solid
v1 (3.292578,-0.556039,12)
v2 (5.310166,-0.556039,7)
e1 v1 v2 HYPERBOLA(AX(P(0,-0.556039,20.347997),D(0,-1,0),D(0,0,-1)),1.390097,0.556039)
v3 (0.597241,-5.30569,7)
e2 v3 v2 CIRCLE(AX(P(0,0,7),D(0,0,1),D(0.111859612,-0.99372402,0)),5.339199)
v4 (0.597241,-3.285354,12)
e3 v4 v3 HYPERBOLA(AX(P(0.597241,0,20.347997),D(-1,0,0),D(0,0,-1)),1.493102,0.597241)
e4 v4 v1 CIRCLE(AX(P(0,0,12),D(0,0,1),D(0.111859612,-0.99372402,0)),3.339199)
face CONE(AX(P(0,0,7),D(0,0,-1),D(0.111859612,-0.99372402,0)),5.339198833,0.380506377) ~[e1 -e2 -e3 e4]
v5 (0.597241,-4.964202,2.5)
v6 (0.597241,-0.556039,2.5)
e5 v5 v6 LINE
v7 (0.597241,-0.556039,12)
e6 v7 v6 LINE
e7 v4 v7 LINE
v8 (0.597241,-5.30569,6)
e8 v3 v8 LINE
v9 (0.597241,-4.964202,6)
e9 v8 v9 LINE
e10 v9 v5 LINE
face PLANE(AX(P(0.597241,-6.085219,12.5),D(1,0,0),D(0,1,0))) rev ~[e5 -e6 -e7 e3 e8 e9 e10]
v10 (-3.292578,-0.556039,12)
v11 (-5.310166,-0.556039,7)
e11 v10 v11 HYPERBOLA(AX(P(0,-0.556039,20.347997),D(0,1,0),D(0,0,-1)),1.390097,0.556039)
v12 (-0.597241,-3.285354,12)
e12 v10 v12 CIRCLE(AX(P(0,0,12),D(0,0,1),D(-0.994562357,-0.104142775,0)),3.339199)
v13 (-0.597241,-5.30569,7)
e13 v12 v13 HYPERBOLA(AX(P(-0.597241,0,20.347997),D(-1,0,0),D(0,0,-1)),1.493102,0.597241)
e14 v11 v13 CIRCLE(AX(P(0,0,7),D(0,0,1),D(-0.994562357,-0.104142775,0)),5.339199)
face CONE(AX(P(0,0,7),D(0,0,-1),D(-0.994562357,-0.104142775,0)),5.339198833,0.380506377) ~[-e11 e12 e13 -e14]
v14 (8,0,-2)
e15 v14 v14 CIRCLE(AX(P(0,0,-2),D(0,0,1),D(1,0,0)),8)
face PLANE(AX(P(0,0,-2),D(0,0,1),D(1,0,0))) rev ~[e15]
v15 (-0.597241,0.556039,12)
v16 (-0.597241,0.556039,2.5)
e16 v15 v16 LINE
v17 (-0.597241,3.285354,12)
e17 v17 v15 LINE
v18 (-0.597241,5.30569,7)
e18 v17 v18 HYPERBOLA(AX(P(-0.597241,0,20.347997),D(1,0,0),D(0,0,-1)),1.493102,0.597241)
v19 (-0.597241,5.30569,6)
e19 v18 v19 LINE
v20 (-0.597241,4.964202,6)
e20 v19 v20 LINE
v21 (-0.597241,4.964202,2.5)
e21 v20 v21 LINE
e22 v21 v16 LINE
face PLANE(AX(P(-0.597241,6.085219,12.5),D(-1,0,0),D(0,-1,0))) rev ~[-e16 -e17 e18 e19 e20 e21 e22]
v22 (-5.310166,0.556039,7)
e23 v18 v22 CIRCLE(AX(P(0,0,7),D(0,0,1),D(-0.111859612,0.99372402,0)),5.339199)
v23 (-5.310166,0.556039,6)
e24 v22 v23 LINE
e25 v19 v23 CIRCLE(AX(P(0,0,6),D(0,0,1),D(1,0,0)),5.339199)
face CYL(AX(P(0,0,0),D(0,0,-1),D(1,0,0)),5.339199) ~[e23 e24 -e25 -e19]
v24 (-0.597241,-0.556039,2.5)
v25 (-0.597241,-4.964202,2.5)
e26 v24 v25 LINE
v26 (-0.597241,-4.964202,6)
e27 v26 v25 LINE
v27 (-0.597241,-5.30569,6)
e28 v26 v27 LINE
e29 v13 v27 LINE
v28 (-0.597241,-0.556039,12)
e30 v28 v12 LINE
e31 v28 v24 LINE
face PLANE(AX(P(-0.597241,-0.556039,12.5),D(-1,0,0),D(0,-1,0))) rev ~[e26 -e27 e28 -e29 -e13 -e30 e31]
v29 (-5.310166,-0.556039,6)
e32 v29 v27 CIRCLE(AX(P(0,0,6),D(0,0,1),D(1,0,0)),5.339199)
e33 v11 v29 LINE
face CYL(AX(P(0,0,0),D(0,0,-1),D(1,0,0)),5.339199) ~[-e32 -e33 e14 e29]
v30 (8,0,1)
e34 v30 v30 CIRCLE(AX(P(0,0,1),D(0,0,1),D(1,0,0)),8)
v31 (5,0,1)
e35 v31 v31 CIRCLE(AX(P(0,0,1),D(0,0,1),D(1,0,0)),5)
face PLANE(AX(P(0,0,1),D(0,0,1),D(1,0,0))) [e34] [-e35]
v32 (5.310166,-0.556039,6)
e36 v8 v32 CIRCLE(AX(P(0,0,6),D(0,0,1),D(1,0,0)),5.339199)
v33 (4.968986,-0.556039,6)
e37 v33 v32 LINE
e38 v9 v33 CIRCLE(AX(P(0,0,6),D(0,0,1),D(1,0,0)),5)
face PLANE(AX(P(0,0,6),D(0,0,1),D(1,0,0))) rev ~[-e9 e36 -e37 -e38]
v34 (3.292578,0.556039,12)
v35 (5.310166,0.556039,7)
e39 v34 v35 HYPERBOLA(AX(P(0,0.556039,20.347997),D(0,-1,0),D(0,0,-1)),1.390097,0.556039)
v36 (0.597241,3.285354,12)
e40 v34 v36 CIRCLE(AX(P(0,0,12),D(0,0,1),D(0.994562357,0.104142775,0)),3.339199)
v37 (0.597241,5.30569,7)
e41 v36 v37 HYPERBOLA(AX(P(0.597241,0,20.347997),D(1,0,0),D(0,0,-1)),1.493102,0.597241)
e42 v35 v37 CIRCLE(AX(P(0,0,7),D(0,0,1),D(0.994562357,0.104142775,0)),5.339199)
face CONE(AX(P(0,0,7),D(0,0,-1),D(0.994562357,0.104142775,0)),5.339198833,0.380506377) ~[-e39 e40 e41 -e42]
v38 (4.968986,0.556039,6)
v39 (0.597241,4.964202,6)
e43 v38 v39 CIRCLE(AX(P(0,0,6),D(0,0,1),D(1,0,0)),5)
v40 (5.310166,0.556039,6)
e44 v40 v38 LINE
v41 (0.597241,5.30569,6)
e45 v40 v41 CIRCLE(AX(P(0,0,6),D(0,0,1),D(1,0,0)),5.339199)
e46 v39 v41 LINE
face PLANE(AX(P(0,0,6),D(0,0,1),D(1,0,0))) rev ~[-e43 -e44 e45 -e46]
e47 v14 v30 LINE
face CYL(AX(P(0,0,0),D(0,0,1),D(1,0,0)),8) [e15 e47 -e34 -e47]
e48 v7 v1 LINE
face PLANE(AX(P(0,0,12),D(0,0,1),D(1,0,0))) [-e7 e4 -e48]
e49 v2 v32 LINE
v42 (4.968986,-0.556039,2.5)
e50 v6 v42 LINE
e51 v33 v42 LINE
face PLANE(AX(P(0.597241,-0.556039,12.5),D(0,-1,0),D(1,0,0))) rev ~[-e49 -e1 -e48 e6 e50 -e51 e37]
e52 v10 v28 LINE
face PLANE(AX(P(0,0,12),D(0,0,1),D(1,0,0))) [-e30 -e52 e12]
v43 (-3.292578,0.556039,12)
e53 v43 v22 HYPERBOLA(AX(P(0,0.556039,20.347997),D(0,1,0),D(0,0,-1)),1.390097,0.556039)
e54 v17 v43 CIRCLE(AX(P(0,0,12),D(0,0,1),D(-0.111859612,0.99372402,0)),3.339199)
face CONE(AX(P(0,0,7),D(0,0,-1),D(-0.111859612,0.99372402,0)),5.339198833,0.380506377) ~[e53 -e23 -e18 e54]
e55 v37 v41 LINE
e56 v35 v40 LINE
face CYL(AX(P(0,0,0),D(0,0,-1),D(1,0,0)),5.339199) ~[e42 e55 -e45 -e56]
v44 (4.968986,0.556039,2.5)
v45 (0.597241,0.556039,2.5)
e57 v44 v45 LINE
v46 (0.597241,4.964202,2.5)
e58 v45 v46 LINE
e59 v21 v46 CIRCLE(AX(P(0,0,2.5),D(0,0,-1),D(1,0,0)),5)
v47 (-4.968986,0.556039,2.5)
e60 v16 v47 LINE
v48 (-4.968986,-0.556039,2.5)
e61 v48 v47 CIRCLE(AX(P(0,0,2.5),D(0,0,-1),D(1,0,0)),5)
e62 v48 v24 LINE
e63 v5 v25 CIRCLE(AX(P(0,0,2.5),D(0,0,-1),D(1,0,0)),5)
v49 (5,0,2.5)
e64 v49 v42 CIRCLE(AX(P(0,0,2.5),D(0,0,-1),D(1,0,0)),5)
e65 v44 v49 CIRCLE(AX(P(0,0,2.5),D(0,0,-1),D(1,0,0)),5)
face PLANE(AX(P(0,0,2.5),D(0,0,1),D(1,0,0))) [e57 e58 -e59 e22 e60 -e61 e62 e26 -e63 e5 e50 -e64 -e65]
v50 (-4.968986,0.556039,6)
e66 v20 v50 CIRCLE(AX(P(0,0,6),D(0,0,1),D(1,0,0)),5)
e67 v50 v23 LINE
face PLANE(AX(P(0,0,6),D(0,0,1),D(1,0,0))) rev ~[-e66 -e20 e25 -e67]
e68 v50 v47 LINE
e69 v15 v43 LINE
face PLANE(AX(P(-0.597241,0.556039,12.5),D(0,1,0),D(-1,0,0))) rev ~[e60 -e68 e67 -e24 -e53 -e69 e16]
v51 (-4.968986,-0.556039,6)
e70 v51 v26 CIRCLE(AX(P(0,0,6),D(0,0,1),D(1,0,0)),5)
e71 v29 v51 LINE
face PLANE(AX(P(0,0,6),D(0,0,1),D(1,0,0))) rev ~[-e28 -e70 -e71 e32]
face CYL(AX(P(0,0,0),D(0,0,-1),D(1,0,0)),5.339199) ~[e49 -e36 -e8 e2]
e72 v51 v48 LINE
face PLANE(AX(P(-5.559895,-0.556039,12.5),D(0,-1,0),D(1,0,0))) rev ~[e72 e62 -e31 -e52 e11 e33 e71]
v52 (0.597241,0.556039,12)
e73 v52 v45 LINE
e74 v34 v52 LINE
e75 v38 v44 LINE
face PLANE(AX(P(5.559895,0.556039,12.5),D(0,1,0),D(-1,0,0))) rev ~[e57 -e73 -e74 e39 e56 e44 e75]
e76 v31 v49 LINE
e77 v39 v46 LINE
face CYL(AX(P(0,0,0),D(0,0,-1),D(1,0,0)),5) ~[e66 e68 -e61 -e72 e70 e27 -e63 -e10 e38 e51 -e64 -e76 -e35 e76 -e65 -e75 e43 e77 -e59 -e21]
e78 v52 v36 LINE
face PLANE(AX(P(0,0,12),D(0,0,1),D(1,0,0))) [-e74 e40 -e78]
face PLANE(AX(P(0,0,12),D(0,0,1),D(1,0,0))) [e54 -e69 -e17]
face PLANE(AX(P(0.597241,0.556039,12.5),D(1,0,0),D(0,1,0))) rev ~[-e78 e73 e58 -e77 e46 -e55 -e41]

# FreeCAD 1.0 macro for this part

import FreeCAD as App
import Part
import Sketcher
from FreeCAD import Vector
Q = App.Units.Quantity


def edges_at(feature, points):
    """Names of the edges that pass closest to the given points."""
    edges = feature.Shape.Edges
    near = lambda p: min(range(len(edges)), key=lambda i: edges[i].distToShape(Part.Vertex(*p))[0])
    return sorted({f"Edge{near(p) + 1}" for p in points})


def add_polygon(sketch, points):
    """Adds a closed chain of lines whose ends are joined by coincident constraints."""
    first, n = sketch.GeometryCount, len(points)
    for a, b in zip(points, points[1:] + points[:1]):
        sketch.addGeometry(Part.LineSegment(App.Vector(*a, 0), App.Vector(*b, 0)), False)
    for i in range(n):
        sketch.addConstraint(Sketcher.Constraint("Coincident", first + i, 2, first + (i + 1) % n, 1))

doc = App.newDocument("Part")
body = doc.addObject("PartDesign::Body", "Body")

sketch1 = body.newObject("Sketcher::SketchObject", "Sketch")
sketch1.AttachmentSupport = (doc.getObject("XY_Plane"), [""])
sketch1.MapMode = "FlatFace"
sketch1.addGeometry(Part.Circle(Vector(0, 0, 0), Vector(0, 0, 1), 5), False)
sketch1.addConstraint([
    Sketcher.Constraint("Coincident", 0, 3, -1, 1),
    Sketcher.Constraint("Diameter", 0, Q("10 mm")),
])
pad1 = body.newObject("PartDesign::Pad", "Pad")
pad1.Profile = sketch1
pad1.Length = 12

sketch2 = body.newObject("Sketcher::SketchObject", "Sketch001")
sketch2.AttachmentSupport = (doc.getObject("XY_Plane"), [""])
sketch2.MapMode = "FlatFace"
sketch2.addGeometry([
    Part.Circle(Vector(0, 0, 0), Vector(0, 0, 1), 5),
    Part.Circle(Vector(0, 0, 0), Vector(0, 0, 1), 5),
], False)
sketch2.addConstraint([
    Sketcher.Constraint("Coincident", 0, 3, -1, 1),
    Sketcher.Constraint("Coincident", 1, 3, -1, 1),
    Sketcher.Constraint("Diameter", 1, Q("10 mm")),
    Sketcher.Constraint("Diameter", 0, Q("10.678398 mm")),
])
pad2 = body.newObject("PartDesign::Pad", "Pad001")
pad2.Profile = sketch2
pad2.Length = 12

sketch3 = body.newObject("Sketcher::SketchObject", "Sketch002")
sketch3.AttachmentSupport = (doc.getObject("XY_Plane"), [""])
sketch3.MapMode = "FlatFace"
sketch3.addGeometry([
    Part.Circle(Vector(0, 0, 0), Vector(0, 0, 1), 5),
    Part.Circle(Vector(0, 0, 0), Vector(0, 0, 1), 5),
], False)
sketch3.addConstraint([
    Sketcher.Constraint("Coincident", 0, 3, -1, 1),
    Sketcher.Constraint("Coincident", 1, 3, -1, 1),
    Sketcher.Constraint("Diameter", 1, Q("10 mm")),
    Sketcher.Constraint("Diameter", 0, Q("10.678398 mm")),
])
pocket1 = body.newObject("PartDesign::Pocket", "Pocket")
pocket1.Profile = sketch3
pocket1.Length = 6
pocket1.Reversed = True

sketch4 = body.newObject("Sketcher::SketchObject", "Sketch003")
sketch4.AttachmentSupport = (doc.getObject("XY_Plane"), [""])
sketch4.MapMode = "FlatFace"
sketch4.addGeometry([
    Part.Circle(Vector(0, 0, 0), Vector(0, 0, 1), 5),
    Part.Circle(Vector(0, 0, 0), Vector(0, 0, 1), 5),
], False)
sketch4.addConstraint([
    Sketcher.Constraint("Coincident", 0, 3, -1, 1),
    Sketcher.Constraint("Coincident", 1, 3, -1, 1),
    Sketcher.Constraint("Diameter", 1, Q("10 mm")),
    Sketcher.Constraint("Diameter", 0, Q("10.678398 mm")),
])
pad3 = body.newObject("PartDesign::Pad", "Pad002")
pad3.Profile = sketch4
pad3.Length = 1
body2 = doc.addObject("PartDesign::Body", "Body001")

sketch5 = body2.newObject("Sketcher::SketchObject", "Sketch004")
sketch5.AttachmentSupport = (doc.getObject("XY_Plane001"), [""])
sketch5.MapMode = "FlatFace"
sketch5.addGeometry([
    Part.Circle(Vector(0, 0, 0), Vector(0, 0, 1), 8),
    Part.Circle(Vector(0, 0, 0), Vector(0, 0, 1), 6),
], False)
sketch5.addConstraint([
    Sketcher.Constraint("Coincident", 0, 3, -1, 1),
    Sketcher.Constraint("Coincident", 1, 3, -1, 1),
    Sketcher.Constraint("Diameter", 0, Q("16 mm")),
    Sketcher.Constraint("Diameter", 1, Q("12 mm")),
])
pad4 = body2.newObject("PartDesign::Pad", "Pad003")
pad4.Profile = sketch5
pad4.Length = 1
body.AllowCompound = True
doc.recompute()

boolean = body.newObject("PartDesign::Boolean", "Boolean")
boolean.Type = "Fuse"
boolean.addObjects([body2])

sketch6 = body.newObject("Sketcher::SketchObject", "Sketch005")
sketch6.AttachmentSupport = (doc.getObject("XY_Plane"), [""])
sketch6.MapMode = "FlatFace"
sketch6.addGeometry([
    Part.Circle(Vector(0, 0, 0), Vector(0, 0, 1), 6),
    Part.Circle(Vector(0, 0, 0), Vector(0, 0, 1), 5),
], False)
sketch6.addConstraint([
    Sketcher.Constraint("Coincident", 0, 3, -1, 1),
    Sketcher.Constraint("Coincident", 1, 3, -1, 1),
    Sketcher.Constraint("Diameter", 0, Q("12 mm")),
    Sketcher.Constraint("Diameter", 1, Q("10.678398 mm")),
])
pad5 = body.newObject("PartDesign::Pad", "Pad004")
pad5.Profile = sketch6
pad5.Length = 1

sketch7 = body.newObject("Sketcher::SketchObject", "Sketch006")
sketch7.AttachmentSupport = (doc.getObject("XY_Plane"), [""])
sketch7.MapMode = "FlatFace"
sketch7.AttachmentOffset = App.Placement(Vector(0, 0, 12.5), App.Rotation())
add_polygon(sketch7, [(-0.6, -6.1), (0.6, -6.1), (0.6, -0.6), (5.6, -0.6), (5.6, 0.6), (0.6, 0.6), (0.6, 6.1), (-0.6, 6.1), (-0.6, 0.6), (-5.6, 0.6), (-5.6, -0.6), (-0.6, -0.6)])
sketch7.addConstraint([
    Sketcher.Constraint("Horizontal", 0),
    Sketcher.Constraint("Vertical", 1),
    Sketcher.Constraint("Horizontal", 2),
    Sketcher.Constraint("Vertical", 3),
    Sketcher.Constraint("Horizontal", 4),
    Sketcher.Constraint("Vertical", 5),
    Sketcher.Constraint("Horizontal", 6),
    Sketcher.Constraint("Vertical", 7),
    Sketcher.Constraint("Horizontal", 8),
    Sketcher.Constraint("Vertical", 9),
    Sketcher.Constraint("Horizontal", 10),
    Sketcher.Constraint("Vertical", 11),
    Sketcher.Constraint("Symmetric", 0, 2, 6, 2, -1, 1),
    Sketcher.Constraint("Symmetric", 2, 2, 8, 2, -1, 1),
    Sketcher.Constraint("Symmetric", 4, 2, 10, 2, -1, 1),
    Sketcher.Constraint("Symmetric", 4, 2, 7, 2, -2),
    Sketcher.Constraint("DistanceX", 0, 1, 0, 2, Q("1.194481 mm")),
    Sketcher.Constraint("DistanceY", 1, 1, 1, 2, Q("5.52918 mm")),
    Sketcher.Constraint("DistanceX", 2, 1, 2, 2, Q("4.962654 mm")),
    Sketcher.Constraint("DistanceY", 3, 1, 3, 2, Q("1.112078 mm")),
])
pocket2 = body.newObject("PartDesign::Pocket", "Pocket001")
pocket2.Profile = sketch7
pocket2.Length = 10
doc.recompute()

chamfer = body.newObject("PartDesign::Chamfer", "Chamfer")
chamfer.Base = (pocket2, edges_at(pocket2, [
    (3.79, -3.761, 12),
    (-3.79, -3.761, 12),
    (3.79, 3.761, 12),
    (-3.79, 3.761, 12),
]))
chamfer.ChamferType = "Two distances"
chamfer.Size = 2
chamfer.Size2 = 5

sketch8 = body.newObject("Sketcher::SketchObject", "Sketch007")
sketch8.AttachmentSupport = (doc.getObject("XY_Plane"), [""])
sketch8.MapMode = "FlatFace"
sketch8.addGeometry(Part.Circle(Vector(0, 0, 0), Vector(0, 0, 1), 8), False)
sketch8.addConstraint([
    Sketcher.Constraint("Coincident", 0, 3, -1, 1),
    Sketcher.Constraint("Diameter", 0, Q("16 mm")),
])
pad6 = body.newObject("PartDesign::Pad", "Pad005")
pad6.Profile = sketch8
pad6.Length = 2
pad6.Reversed = True

doc.recompute()
